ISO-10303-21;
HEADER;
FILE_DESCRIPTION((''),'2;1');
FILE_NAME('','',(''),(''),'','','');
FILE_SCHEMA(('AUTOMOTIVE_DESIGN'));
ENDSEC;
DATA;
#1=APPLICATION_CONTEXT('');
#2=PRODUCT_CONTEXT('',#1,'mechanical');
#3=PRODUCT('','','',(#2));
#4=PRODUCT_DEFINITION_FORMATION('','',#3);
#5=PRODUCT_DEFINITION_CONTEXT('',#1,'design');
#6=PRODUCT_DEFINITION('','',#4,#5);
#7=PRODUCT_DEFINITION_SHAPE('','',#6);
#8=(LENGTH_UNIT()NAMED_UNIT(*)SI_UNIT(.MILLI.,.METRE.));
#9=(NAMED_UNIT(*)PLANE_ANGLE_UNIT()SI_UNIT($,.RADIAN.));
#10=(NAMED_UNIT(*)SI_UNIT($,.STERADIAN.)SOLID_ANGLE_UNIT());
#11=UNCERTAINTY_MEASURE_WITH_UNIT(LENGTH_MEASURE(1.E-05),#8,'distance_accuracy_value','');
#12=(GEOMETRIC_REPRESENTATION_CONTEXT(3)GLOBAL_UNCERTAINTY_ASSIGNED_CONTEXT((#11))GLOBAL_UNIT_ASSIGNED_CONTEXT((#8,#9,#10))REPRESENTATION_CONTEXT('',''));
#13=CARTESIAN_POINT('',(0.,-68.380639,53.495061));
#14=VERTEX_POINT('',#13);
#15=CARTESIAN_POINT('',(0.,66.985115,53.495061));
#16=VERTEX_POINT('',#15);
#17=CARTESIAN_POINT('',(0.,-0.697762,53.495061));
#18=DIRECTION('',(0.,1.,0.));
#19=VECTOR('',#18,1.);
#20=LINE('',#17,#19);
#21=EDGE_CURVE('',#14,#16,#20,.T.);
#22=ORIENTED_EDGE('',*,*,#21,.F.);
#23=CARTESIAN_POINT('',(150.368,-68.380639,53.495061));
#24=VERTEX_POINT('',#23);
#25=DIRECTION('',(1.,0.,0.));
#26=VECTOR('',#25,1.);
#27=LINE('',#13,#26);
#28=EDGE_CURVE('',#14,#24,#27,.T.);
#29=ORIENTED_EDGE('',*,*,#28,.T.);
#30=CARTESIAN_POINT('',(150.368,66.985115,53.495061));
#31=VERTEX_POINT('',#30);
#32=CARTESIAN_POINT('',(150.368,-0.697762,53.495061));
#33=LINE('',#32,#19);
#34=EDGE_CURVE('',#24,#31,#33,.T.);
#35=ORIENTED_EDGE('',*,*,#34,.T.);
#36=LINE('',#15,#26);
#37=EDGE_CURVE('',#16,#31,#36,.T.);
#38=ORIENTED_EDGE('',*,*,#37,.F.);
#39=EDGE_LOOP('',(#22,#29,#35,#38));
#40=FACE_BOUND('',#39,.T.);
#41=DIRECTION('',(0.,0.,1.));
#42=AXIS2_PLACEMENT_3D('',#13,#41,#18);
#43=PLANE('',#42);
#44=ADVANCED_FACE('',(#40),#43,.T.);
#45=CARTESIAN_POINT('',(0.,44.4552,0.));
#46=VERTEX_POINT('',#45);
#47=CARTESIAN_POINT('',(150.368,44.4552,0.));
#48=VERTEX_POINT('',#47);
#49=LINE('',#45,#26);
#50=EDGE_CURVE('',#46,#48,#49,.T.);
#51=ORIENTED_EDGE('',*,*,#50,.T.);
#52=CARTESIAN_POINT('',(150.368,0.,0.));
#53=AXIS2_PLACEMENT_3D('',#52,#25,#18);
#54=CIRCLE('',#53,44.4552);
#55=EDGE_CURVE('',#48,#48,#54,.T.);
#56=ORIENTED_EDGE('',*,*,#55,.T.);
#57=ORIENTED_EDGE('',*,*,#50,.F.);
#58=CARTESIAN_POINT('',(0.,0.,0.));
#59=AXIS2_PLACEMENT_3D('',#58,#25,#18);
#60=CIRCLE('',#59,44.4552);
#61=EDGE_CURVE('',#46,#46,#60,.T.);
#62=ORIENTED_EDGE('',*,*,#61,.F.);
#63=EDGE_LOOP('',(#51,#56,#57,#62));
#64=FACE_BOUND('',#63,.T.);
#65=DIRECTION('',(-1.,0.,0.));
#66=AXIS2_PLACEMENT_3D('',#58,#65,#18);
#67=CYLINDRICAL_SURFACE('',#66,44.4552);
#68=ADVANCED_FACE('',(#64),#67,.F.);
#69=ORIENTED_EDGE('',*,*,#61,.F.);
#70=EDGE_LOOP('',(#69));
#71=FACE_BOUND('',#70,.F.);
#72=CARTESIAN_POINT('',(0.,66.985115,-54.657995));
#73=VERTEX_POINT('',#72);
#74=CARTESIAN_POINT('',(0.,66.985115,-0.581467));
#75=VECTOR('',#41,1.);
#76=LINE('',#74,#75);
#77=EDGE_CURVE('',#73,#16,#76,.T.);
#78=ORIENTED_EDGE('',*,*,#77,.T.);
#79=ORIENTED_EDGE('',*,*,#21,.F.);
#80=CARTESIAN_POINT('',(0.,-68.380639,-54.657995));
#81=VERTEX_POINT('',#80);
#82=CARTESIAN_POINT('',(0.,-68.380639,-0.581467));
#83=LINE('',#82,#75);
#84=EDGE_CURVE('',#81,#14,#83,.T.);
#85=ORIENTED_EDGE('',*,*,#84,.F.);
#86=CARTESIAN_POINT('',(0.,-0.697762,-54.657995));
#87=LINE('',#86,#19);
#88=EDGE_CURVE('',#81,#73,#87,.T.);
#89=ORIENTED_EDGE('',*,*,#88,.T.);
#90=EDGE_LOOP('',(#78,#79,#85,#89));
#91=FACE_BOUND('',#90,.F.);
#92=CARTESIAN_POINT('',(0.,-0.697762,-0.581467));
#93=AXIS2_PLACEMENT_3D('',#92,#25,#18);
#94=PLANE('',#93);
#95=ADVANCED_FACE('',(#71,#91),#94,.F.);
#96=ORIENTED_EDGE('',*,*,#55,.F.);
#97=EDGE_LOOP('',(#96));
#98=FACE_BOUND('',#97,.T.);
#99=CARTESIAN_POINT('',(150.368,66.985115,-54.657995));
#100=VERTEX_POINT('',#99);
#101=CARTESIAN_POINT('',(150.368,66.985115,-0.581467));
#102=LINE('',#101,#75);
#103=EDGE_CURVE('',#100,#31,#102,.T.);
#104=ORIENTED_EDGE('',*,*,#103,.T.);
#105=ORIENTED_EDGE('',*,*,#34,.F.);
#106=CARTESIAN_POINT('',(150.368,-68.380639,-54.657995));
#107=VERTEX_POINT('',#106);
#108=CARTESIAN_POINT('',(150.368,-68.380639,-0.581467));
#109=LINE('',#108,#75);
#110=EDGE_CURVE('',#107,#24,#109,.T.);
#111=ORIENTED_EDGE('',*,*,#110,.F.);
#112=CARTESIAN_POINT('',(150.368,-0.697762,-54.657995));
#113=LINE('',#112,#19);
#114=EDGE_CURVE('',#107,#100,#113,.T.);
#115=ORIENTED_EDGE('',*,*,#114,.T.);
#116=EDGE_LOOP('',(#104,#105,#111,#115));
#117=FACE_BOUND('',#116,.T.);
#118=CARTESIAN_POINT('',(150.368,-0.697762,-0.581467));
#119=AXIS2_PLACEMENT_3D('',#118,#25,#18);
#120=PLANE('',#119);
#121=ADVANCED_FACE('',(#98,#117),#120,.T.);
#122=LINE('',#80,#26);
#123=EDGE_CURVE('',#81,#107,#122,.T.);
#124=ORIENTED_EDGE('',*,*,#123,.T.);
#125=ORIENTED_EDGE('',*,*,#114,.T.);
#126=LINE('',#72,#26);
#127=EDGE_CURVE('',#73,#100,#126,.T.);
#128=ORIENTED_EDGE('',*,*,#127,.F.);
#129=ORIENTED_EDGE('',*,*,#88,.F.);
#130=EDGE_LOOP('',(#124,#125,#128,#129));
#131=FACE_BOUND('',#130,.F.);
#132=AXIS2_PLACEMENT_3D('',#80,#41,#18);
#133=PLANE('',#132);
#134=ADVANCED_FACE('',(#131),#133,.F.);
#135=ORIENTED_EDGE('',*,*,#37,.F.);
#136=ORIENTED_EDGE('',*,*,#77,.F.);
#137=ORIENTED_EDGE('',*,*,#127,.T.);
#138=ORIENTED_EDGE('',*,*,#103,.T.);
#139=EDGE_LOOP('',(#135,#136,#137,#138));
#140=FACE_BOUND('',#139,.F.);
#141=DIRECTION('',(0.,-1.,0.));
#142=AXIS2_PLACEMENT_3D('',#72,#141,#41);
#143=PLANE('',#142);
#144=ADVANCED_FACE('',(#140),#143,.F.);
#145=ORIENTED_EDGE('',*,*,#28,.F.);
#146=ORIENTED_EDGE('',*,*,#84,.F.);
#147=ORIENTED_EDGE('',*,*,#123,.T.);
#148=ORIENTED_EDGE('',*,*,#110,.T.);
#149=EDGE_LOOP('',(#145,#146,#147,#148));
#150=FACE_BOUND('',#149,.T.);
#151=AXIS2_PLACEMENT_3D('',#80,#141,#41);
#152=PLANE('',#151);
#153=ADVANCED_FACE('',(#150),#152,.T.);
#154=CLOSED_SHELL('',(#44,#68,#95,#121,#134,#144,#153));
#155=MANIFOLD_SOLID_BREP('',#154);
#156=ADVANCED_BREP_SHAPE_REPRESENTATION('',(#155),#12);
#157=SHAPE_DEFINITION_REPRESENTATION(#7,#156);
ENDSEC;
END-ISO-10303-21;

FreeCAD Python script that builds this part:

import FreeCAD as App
import Part
import Sketcher
Q = App.Units.Quantity

doc = App.newDocument("Part")
body = doc.addObject("PartDesign::Body", "Body")

sketch1 = body.newObject("Sketcher::SketchObject", "Sketch")
sketch1.AttachmentSupport = (doc.getObject("YZ_Plane"), [""])
sketch1.MapMode = "FlatFace"
sketch1.addGeometry(Part.LineSegment(App.Vector(-68, 53, 0), App.Vector(-68, -55, 0)), False)
sketch1.addGeometry(Part.LineSegment(App.Vector(-68, -55, 0), App.Vector(67, -55, 0)), False)
sketch1.addGeometry(Part.LineSegment(App.Vector(67, -55, 0), App.Vector(67, 53, 0)), False)
sketch1.addGeometry(Part.LineSegment(App.Vector(67, 53, 0), App.Vector(-68, 53, 0)), False)
sketch1.addGeometry(Part.Circle(App.Vector(0, 0, 0), App.Vector(0, 0, 1), 44), False)
sketch1.addConstraint(Sketcher.Constraint("Coincident", 0, 2, 1, 1))
sketch1.addConstraint(Sketcher.Constraint("Coincident", 1, 2, 2, 1))
sketch1.addConstraint(Sketcher.Constraint("Coincident", 2, 2, 3, 1))
sketch1.addConstraint(Sketcher.Constraint("Coincident", 3, 2, 0, 1))
sketch1.addConstraint(Sketcher.Constraint("Vertical", 0))
sketch1.addConstraint(Sketcher.Constraint("Horizontal", 1))
sketch1.addConstraint(Sketcher.Constraint("Vertical", 2))
sketch1.addConstraint(Sketcher.Constraint("Horizontal", 3))
sketch1.addConstraint(Sketcher.Constraint("Coincident", 4, 3, -1, 1))
sketch1.addConstraint(Sketcher.Constraint("Diameter", 4, Q("88.9104 mm")))
sketch1.addConstraint(Sketcher.Constraint("DistanceX", 1, 1, 1, 2, Q("135.365754 mm")))
sketch1.addConstraint(Sketcher.Constraint("DistanceY", 0, 2, 0, 1, Q("108.153057 mm")))
sketch1.addConstraint(Sketcher.Constraint("DistanceX", 0, 2, -1, 1, Q("68.380639 mm")))
sketch1.addConstraint(Sketcher.Constraint("DistanceY", -1, 1, 2, 2, Q("53.495061 mm")))
pad1 = body.newObject("PartDesign::Pad", "Pad")
pad1.Profile = sketch1
pad1.Length = Q("5.92 in")

doc.recompute()
